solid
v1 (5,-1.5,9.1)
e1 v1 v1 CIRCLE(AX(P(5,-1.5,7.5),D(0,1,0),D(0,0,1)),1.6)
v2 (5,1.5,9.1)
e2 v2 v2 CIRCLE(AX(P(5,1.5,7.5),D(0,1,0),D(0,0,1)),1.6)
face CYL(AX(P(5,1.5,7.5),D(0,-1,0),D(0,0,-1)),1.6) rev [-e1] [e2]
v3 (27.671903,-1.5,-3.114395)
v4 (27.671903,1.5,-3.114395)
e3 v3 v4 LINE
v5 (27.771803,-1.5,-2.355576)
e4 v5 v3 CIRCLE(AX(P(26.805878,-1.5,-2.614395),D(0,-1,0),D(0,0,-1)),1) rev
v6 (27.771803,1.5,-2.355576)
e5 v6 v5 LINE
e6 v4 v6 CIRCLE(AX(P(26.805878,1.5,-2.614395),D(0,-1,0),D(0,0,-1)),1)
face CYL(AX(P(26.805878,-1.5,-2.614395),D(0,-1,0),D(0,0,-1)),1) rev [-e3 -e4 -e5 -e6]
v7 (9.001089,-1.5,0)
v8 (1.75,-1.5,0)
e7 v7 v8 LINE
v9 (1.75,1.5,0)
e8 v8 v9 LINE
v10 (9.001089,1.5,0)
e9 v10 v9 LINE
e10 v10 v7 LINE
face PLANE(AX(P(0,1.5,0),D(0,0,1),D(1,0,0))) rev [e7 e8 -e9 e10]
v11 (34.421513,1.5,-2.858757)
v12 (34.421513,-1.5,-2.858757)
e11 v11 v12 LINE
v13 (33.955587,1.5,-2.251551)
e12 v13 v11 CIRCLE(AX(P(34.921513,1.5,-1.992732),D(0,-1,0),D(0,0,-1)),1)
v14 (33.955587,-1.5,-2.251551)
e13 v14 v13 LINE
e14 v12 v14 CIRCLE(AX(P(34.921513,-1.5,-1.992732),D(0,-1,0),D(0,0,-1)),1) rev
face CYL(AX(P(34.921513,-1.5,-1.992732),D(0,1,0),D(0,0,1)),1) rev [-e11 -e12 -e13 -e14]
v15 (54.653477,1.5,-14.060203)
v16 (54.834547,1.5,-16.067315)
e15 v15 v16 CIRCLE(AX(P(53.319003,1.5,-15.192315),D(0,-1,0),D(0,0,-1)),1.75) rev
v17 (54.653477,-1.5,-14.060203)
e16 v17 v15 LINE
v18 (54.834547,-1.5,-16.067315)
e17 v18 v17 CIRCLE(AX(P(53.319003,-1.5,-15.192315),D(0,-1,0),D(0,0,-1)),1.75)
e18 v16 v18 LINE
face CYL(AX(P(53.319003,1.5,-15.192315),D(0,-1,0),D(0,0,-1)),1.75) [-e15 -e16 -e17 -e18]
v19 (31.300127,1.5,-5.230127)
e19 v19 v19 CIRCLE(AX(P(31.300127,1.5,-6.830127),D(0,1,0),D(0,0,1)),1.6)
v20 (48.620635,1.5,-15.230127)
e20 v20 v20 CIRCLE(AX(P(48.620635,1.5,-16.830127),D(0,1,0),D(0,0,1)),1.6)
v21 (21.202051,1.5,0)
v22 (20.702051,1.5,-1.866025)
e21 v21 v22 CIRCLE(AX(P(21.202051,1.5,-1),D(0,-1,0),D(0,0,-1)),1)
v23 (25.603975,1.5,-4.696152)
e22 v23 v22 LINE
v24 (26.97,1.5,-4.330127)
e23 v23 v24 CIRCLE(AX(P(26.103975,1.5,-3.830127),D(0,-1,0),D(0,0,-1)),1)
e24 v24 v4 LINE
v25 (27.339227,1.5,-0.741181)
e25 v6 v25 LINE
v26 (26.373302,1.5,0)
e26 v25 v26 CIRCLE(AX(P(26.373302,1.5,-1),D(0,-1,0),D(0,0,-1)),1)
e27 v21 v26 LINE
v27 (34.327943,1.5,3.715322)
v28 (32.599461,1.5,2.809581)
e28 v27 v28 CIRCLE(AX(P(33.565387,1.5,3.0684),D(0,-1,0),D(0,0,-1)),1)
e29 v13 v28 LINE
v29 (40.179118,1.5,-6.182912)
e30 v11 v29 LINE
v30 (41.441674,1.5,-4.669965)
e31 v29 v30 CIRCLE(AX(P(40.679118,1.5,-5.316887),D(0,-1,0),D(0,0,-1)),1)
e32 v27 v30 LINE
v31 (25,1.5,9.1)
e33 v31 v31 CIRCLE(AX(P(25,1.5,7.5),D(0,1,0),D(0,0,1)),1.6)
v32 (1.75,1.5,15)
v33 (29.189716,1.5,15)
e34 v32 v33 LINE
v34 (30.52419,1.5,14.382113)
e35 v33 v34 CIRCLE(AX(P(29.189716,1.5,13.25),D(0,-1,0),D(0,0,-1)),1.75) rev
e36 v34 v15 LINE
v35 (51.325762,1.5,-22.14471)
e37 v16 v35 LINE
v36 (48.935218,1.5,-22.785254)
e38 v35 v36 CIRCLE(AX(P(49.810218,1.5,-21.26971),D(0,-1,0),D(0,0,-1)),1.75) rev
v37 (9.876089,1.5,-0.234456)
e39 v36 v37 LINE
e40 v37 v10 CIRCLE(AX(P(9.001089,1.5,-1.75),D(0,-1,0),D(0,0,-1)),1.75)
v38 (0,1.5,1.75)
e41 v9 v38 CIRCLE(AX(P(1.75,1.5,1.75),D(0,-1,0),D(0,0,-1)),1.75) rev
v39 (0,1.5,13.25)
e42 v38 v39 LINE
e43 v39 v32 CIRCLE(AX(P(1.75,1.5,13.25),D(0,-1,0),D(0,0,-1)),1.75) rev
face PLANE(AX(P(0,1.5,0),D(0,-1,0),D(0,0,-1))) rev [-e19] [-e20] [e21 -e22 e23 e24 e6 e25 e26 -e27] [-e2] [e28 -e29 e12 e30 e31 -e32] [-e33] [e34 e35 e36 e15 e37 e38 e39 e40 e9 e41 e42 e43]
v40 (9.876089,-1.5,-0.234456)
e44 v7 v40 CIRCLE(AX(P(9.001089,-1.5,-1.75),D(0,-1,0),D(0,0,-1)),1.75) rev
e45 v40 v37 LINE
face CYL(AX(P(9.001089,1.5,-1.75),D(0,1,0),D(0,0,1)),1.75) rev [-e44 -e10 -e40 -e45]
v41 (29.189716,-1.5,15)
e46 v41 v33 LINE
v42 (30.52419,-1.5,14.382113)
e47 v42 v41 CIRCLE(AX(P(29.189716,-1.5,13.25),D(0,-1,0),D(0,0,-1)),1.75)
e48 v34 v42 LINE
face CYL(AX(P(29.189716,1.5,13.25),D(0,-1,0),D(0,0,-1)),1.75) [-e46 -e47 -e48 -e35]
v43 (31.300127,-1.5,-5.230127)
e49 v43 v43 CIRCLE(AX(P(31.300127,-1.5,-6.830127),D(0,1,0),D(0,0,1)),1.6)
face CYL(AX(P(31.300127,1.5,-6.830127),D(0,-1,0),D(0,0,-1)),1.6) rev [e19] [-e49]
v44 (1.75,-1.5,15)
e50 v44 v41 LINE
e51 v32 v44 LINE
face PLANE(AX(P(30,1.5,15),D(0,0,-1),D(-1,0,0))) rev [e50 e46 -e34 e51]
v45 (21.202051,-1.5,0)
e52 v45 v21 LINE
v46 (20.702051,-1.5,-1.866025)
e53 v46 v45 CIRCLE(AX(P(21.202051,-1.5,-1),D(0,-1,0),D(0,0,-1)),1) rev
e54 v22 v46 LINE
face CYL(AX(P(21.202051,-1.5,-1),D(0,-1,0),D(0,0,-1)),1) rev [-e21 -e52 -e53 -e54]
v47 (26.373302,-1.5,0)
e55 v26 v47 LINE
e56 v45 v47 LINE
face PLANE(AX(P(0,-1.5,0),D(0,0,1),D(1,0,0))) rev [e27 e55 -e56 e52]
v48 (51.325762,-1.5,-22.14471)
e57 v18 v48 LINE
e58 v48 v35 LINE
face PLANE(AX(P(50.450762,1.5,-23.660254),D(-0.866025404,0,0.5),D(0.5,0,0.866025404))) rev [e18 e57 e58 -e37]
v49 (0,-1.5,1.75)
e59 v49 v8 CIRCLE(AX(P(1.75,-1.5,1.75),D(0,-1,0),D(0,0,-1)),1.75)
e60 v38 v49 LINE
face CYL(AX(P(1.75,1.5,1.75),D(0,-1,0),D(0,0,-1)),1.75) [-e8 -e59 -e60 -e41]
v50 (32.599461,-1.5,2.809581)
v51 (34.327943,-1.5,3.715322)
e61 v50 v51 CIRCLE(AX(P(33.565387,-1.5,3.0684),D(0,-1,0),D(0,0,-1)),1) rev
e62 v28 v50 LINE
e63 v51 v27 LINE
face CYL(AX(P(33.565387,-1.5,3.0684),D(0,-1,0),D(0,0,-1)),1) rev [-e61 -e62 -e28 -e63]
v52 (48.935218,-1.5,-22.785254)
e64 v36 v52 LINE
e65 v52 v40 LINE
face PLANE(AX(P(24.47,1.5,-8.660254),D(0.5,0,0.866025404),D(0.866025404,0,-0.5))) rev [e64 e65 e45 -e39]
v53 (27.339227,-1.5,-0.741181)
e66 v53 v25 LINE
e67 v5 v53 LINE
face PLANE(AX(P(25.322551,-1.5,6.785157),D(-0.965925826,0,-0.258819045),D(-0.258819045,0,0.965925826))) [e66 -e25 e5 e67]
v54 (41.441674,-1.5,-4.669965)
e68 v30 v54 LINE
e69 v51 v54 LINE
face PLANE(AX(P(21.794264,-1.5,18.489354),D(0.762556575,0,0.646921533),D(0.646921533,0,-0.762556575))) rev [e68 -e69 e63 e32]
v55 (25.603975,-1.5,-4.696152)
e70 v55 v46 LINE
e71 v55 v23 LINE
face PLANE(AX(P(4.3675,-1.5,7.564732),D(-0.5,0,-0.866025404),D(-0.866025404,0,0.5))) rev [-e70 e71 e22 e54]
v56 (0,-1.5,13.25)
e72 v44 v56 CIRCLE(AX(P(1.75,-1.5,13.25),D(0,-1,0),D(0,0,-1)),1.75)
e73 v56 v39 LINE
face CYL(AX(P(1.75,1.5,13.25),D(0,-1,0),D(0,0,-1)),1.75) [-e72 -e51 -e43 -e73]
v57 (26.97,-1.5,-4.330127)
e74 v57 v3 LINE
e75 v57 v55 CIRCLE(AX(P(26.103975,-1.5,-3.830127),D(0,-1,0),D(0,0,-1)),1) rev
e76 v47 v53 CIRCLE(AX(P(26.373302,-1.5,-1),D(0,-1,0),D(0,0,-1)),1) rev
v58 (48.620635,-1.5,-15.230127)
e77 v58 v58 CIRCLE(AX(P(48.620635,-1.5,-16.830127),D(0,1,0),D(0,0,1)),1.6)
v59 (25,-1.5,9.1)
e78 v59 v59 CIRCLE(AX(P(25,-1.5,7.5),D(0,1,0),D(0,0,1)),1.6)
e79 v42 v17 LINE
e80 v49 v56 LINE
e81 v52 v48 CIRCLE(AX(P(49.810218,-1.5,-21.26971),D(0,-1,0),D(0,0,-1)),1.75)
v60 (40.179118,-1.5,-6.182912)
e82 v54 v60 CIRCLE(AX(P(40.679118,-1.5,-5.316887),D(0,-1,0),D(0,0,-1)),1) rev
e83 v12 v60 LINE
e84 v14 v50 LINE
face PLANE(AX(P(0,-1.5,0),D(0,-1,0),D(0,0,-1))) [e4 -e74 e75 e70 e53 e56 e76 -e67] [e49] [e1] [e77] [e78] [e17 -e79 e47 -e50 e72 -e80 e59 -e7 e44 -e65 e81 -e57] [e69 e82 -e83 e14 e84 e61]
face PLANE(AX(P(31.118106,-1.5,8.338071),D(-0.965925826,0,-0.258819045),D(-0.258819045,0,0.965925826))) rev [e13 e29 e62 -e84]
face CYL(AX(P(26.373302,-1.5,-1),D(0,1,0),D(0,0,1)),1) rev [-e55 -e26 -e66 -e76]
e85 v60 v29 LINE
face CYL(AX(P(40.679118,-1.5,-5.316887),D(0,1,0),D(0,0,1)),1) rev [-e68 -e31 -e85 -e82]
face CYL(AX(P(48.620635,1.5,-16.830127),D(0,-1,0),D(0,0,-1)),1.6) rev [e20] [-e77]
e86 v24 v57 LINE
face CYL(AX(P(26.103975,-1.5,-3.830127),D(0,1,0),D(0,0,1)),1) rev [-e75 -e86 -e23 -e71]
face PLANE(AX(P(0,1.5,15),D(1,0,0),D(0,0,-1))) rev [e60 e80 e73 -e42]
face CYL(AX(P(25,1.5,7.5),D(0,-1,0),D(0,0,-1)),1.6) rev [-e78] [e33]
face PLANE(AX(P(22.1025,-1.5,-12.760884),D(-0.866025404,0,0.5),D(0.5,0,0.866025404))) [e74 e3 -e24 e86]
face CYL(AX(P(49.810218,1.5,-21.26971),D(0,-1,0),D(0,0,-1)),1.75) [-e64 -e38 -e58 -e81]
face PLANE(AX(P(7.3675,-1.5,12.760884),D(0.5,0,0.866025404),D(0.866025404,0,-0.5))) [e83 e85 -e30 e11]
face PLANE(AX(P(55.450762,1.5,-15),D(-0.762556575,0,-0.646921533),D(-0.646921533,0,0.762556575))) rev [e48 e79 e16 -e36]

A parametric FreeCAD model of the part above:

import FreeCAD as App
import Part
import Sketcher
from FreeCAD import Vector
Q = App.Units.Quantity


def edges_at(feature, points):
    """Names of the edges that pass closest to the given points."""
    edges = feature.Shape.Edges
    near = lambda p: min(range(len(edges)), key=lambda i: edges[i].distToShape(Part.Vertex(*p))[0])
    return sorted({f"Edge{near(p) + 1}" for p in points})

doc = App.newDocument("Part")
params = doc.addObject("Spreadsheet::Sheet", "Params")
for row, (alias, value) in enumerate([
    ("sketch1_diameter", "3.2 mm"),
    ("sketch1_width", "30 mm"),
    ("sketch1_height", "15 mm"),
    ("sketch1_length", "10 mm"),
    ("sketch1_length2", "30 mm"),
    ("pad1_length", "3 mm"),
    ("pocket1_length", "3 mm"),
    ("fillet_radius", "1 mm"),
    ("fillet2_radius", "1.75 mm"),
], start=1):
    params.set(f"A{row}", alias)
    params.set(f"B{row}", "=" + value)
    params.setAlias(f"B{row}", alias)

body = doc.addObject("PartDesign::Body", "Body")

# Sketch on XZ plane
sketch1 = body.newObject("Sketcher::SketchObject", "Sketch")
sketch1.AttachmentSupport = (doc.getObject("XZ_Plane"), [""])
sketch1.MapMode = "FlatFace"
sketch1.addGeometry(Part.LineSegment(Vector(24.5, -8.7, 0), Vector(9.5, 0, 0)), False)
sketch1.addGeometry(Part.LineSegment(Vector(9.5, 0, 0), Vector(0, 0, 0)), False)
sketch1.addGeometry(Part.LineSegment(Vector(0, 0, 0), Vector(0, 15, 0)), False)
sketch1.addGeometry(Part.LineSegment(Vector(0, 15, 0), Vector(30, 15, 0)), False)
sketch1.addGeometry(Part.LineSegment(Vector(30, 15, 0), Vector(55.5, -15, 0)), False)
sketch1.addGeometry(Part.LineSegment(Vector(55.5, -15, 0), Vector(50.5, -23.7, 0)), False)
sketch1.addGeometry(Part.LineSegment(Vector(50.5, -23.7, 0), Vector(24.5, -8.7, 0)), False)
sketch1.addGeometry(Part.Circle(Vector(5, 7.5, 0), Vector(0, 0, 1), 1.6), False)
sketch1.addGeometry(Part.Circle(Vector(25, 7.5, 0), Vector(0, 0, 1), 1.6), False)
sketch1.addGeometry(Part.Circle(Vector(31.3, -6.8, 0), Vector(0, 0, 1), 1.6), False)
sketch1.addGeometry(Part.Circle(Vector(48.6, -16.8, 0), Vector(0, 0, 1), 1.6), False)
sketch1.addConstraint(Sketcher.Constraint("Coincident", 0, 2, 1, 1))
sketch1.addConstraint(Sketcher.Constraint("Coincident", 1, 2, 2, 1))
sketch1.addConstraint(Sketcher.Constraint("Coincident", 2, 2, 3, 1))
sketch1.addConstraint(Sketcher.Constraint("Coincident", 3, 2, 4, 1))
sketch1.addConstraint(Sketcher.Constraint("Coincident", 4, 2, 5, 1))
sketch1.addConstraint(Sketcher.Constraint("Coincident", 5, 2, 6, 1))
sketch1.addConstraint(Sketcher.Constraint("Coincident", 6, 2, 0, 1))
sketch1.addConstraint(Sketcher.Constraint("Horizontal", 1))
sketch1.addConstraint(Sketcher.Constraint("Vertical", 2))
sketch1.addConstraint(Sketcher.Constraint("Horizontal", 3))
sketch1.addConstraint(Sketcher.Constraint("Coincident", 1, 2, -1, 1))
sketch1.addConstraint(Sketcher.Constraint("Equal", 7, 8))
sketch1.addConstraint(Sketcher.Constraint("Equal", 8, 9))
sketch1.addConstraint(Sketcher.Constraint("Equal", 9, 10))
sketch1.addConstraint(Sketcher.Constraint("Perpendicular", 0, 5))
sketch1.addConstraint(Sketcher.Constraint("Perpendicular", 5, 6))
sketch1.addConstraint(Sketcher.Constraint("Horizontal", 7, 3, 8, 3))
sketch1.addConstraint(Sketcher.Constraint("Diameter", 7, 3.2))
sketch1.addConstraint(Sketcher.Constraint("DistanceX", 3, 1, 3, 2, 30.0))
sketch1.addConstraint(Sketcher.Constraint("DistanceY", 2, 1, 2, 2, 15.0))
sketch1.addConstraint(Sketcher.Constraint("Angle", 0, Q("150 deg")))
sketch1.addConstraint(Sketcher.Constraint("Distance", 5, 10.0))
sketch1.addConstraint(Sketcher.Constraint("Distance", 6, 30.0))
sketch1.addConstraint(Sketcher.Constraint("DistanceX", -1, 1, 7, 3, 5.0))
sketch1.addConstraint(Sketcher.Constraint("DistanceX", -1, 1, 8, 3, 25.0))
sketch1.addConstraint(Sketcher.Constraint("DistanceY", 4, 2, -1, 1, 15.0))
sketch1.addConstraint(Sketcher.Constraint("DistanceY", 10, 3, 9, 3, 10.0))
sketch1.addConstraint(Sketcher.Constraint("DistanceX", 1, 2, 1, 1, 9.47))
sketch1.addConstraint(Sketcher.Constraint("DistanceY", -1, 1, 7, 3, 7.5))
sketch1.addConstraint(Sketcher.Constraint("DistanceX", 9, 3, 10, 3, 17.320508))
sketch1.addConstraint(Sketcher.Constraint("DistanceX", -1, 1, 9, 3, 31.300127))
sketch1.addConstraint(Sketcher.Constraint("DistanceY", 9, 3, -1, 1, 6.830127))
sketch1.setExpression("Constraints[17]", "Params.sketch1_diameter")
sketch1.setExpression("Constraints[18]", "Params.sketch1_width")
sketch1.setExpression("Constraints[19]", "Params.sketch1_height")
sketch1.setExpression("Constraints[21]", "Params.sketch1_length")
sketch1.setExpression("Constraints[22]", "Params.sketch1_length2")
pad1 = body.newObject("PartDesign::Pad", "Pad")
pad1.Profile = sketch1
pad1.setExpression("Length", "Params.pad1_length")
pad1.Midplane = True

# Sketch on XZ plane
sketch2 = body.newObject("Sketcher::SketchObject", "Sketch001")
sketch2.AttachmentSupport = (doc.getObject("XZ_Plane"), [""])
sketch2.MapMode = "FlatFace"
sketch2.AttachmentOffset = App.Placement(Vector(0, 0, -1.5), App.Rotation())
sketch2.addGeometry(Part.LineSegment(Vector(26.5, -5.2, 0), Vector(17.5, 0, 0)), False)
sketch2.addGeometry(Part.LineSegment(Vector(17.5, 0, 0), Vector(27.1, 0, 0)), False)
sketch2.addGeometry(Part.LineSegment(Vector(27.1, 0, 0), Vector(27.9, -2.8, 0)), False)
sketch2.addGeometry(Part.LineSegment(Vector(27.9, -2.8, 0), Vector(26.5, -5.2, 0)), False)
sketch2.addGeometry(Part.LineSegment(Vector(37.5, 0, 0), Vector(45.2, -9.1, 0)), False)
sketch2.addGeometry(Part.LineSegment(Vector(45.2, -9.1, 0), Vector(34.1, -2.7, 0)), False)
sketch2.addGeometry(Part.LineSegment(Vector(34.1, -2.7, 0), Vector(33.4, 0, 0)), False)
sketch2.addGeometry(Part.LineSegment(Vector(33.4, 0, 0), Vector(31.4, 7.1, 0)), False)
sketch2.addGeometry(Part.LineSegment(Vector(31.4, 7.1, 0), Vector(37.5, 0, 0)), False)
sketch2.addConstraint(Sketcher.Constraint("Coincident", 0, 2, 1, 1))
sketch2.addConstraint(Sketcher.Constraint("Coincident", 1, 2, 2, 1))
sketch2.addConstraint(Sketcher.Constraint("Coincident", 2, 2, 3, 1))
sketch2.addConstraint(Sketcher.Constraint("Coincident", 3, 2, 0, 1))
sketch2.addConstraint(Sketcher.Constraint("Coincident", 4, 2, 5, 1))
sketch2.addConstraint(Sketcher.Constraint("Coincident", 5, 2, 6, 1))
sketch2.addConstraint(Sketcher.Constraint("Coincident", 6, 2, 7, 1))
sketch2.addConstraint(Sketcher.Constraint("Coincident", 7, 2, 8, 1))
sketch2.addConstraint(Sketcher.Constraint("Coincident", 8, 2, 4, 1))
sketch2.addConstraint(Sketcher.Constraint("Horizontal", 1))
sketch2.addConstraint(Sketcher.Constraint("PointOnObject", 0, 2, -1))
sketch2.addConstraint(Sketcher.Constraint("PointOnObject", 6, 2, -1))
sketch2.addConstraint(Sketcher.Constraint("PointOnObject", 8, 2, -1))
sketch2.addConstraint(Sketcher.Constraint("Perpendicular", 0, 3))
sketch2.addConstraint(Sketcher.Constraint("Perpendicular", 3, 5))
sketch2.addConstraint(Sketcher.Constraint("Parallel", 2, 6))
sketch2.addConstraint(Sketcher.Constraint("Parallel", 6, 7))
sketch2.addConstraint(Sketcher.Constraint("Parallel", 4, 8))
sketch2.addConstraint(Sketcher.Constraint("Angle", 0, Q("150 deg")))
sketch2.addConstraint(Sketcher.Constraint("Angle", 2, Q("-75 deg")))
sketch2.addConstraint(Sketcher.Constraint("DistanceX", 0, 2, 3, 2, 9.0))
sketch2.addConstraint(Sketcher.Constraint("DistanceX", -1, 1, 0, 2, 17.47))
sketch2.addConstraint(Sketcher.Constraint("DistanceX", 1, 1, 1, 2, 9.670629))
sketch2.addConstraint(Sketcher.Constraint("DistanceY", -1, 1, 7, 2, 7.111501))
sketch2.addConstraint(Sketcher.Constraint("DistanceY", 3, 2, 5, 2, 2.544502))
sketch2.addConstraint(Sketcher.Constraint("Distance", 5, 12.824889))
sketch2.addConstraint(Sketcher.Constraint("DistanceX", -1, 1, 8, 2, 37.479869))
pocket1 = body.newObject("PartDesign::Pocket", "Pocket")
pocket1.Profile = sketch2
pocket1.setExpression("Length", "Params.pocket1_length")
pocket1.Reversed = True
doc.recompute()

fillet = body.newObject("PartDesign::Fillet", "Fillet")
fillet.Base = (pocket1, edges_at(pocket1, [
    (27.879, 0, -2.756),
    (27.141, 0, 0),
    (17.47, 0, 0),
    (26.47, 0, -5.196),
    (34.063, 0, -2.652),
    (45.169, 0, -9.064),
    (31.447, 0, 7.112),
]))
fillet.setExpression("Radius", "Params.fillet_radius")
doc.recompute()

fillet2 = body.newObject("PartDesign::Fillet", "Fillet001")
fillet2.Base = (fillet, edges_at(fillet, [
    (50.451, 0, -23.66),
    (55.451, 0, -15),
    (30, 0, 15),
    (0, 0, 15),
    (0, 0, 0),
    (9.47, 0, 0),
]))
fillet2.setExpression("Radius", "Params.fillet2_radius")

doc.recompute()
